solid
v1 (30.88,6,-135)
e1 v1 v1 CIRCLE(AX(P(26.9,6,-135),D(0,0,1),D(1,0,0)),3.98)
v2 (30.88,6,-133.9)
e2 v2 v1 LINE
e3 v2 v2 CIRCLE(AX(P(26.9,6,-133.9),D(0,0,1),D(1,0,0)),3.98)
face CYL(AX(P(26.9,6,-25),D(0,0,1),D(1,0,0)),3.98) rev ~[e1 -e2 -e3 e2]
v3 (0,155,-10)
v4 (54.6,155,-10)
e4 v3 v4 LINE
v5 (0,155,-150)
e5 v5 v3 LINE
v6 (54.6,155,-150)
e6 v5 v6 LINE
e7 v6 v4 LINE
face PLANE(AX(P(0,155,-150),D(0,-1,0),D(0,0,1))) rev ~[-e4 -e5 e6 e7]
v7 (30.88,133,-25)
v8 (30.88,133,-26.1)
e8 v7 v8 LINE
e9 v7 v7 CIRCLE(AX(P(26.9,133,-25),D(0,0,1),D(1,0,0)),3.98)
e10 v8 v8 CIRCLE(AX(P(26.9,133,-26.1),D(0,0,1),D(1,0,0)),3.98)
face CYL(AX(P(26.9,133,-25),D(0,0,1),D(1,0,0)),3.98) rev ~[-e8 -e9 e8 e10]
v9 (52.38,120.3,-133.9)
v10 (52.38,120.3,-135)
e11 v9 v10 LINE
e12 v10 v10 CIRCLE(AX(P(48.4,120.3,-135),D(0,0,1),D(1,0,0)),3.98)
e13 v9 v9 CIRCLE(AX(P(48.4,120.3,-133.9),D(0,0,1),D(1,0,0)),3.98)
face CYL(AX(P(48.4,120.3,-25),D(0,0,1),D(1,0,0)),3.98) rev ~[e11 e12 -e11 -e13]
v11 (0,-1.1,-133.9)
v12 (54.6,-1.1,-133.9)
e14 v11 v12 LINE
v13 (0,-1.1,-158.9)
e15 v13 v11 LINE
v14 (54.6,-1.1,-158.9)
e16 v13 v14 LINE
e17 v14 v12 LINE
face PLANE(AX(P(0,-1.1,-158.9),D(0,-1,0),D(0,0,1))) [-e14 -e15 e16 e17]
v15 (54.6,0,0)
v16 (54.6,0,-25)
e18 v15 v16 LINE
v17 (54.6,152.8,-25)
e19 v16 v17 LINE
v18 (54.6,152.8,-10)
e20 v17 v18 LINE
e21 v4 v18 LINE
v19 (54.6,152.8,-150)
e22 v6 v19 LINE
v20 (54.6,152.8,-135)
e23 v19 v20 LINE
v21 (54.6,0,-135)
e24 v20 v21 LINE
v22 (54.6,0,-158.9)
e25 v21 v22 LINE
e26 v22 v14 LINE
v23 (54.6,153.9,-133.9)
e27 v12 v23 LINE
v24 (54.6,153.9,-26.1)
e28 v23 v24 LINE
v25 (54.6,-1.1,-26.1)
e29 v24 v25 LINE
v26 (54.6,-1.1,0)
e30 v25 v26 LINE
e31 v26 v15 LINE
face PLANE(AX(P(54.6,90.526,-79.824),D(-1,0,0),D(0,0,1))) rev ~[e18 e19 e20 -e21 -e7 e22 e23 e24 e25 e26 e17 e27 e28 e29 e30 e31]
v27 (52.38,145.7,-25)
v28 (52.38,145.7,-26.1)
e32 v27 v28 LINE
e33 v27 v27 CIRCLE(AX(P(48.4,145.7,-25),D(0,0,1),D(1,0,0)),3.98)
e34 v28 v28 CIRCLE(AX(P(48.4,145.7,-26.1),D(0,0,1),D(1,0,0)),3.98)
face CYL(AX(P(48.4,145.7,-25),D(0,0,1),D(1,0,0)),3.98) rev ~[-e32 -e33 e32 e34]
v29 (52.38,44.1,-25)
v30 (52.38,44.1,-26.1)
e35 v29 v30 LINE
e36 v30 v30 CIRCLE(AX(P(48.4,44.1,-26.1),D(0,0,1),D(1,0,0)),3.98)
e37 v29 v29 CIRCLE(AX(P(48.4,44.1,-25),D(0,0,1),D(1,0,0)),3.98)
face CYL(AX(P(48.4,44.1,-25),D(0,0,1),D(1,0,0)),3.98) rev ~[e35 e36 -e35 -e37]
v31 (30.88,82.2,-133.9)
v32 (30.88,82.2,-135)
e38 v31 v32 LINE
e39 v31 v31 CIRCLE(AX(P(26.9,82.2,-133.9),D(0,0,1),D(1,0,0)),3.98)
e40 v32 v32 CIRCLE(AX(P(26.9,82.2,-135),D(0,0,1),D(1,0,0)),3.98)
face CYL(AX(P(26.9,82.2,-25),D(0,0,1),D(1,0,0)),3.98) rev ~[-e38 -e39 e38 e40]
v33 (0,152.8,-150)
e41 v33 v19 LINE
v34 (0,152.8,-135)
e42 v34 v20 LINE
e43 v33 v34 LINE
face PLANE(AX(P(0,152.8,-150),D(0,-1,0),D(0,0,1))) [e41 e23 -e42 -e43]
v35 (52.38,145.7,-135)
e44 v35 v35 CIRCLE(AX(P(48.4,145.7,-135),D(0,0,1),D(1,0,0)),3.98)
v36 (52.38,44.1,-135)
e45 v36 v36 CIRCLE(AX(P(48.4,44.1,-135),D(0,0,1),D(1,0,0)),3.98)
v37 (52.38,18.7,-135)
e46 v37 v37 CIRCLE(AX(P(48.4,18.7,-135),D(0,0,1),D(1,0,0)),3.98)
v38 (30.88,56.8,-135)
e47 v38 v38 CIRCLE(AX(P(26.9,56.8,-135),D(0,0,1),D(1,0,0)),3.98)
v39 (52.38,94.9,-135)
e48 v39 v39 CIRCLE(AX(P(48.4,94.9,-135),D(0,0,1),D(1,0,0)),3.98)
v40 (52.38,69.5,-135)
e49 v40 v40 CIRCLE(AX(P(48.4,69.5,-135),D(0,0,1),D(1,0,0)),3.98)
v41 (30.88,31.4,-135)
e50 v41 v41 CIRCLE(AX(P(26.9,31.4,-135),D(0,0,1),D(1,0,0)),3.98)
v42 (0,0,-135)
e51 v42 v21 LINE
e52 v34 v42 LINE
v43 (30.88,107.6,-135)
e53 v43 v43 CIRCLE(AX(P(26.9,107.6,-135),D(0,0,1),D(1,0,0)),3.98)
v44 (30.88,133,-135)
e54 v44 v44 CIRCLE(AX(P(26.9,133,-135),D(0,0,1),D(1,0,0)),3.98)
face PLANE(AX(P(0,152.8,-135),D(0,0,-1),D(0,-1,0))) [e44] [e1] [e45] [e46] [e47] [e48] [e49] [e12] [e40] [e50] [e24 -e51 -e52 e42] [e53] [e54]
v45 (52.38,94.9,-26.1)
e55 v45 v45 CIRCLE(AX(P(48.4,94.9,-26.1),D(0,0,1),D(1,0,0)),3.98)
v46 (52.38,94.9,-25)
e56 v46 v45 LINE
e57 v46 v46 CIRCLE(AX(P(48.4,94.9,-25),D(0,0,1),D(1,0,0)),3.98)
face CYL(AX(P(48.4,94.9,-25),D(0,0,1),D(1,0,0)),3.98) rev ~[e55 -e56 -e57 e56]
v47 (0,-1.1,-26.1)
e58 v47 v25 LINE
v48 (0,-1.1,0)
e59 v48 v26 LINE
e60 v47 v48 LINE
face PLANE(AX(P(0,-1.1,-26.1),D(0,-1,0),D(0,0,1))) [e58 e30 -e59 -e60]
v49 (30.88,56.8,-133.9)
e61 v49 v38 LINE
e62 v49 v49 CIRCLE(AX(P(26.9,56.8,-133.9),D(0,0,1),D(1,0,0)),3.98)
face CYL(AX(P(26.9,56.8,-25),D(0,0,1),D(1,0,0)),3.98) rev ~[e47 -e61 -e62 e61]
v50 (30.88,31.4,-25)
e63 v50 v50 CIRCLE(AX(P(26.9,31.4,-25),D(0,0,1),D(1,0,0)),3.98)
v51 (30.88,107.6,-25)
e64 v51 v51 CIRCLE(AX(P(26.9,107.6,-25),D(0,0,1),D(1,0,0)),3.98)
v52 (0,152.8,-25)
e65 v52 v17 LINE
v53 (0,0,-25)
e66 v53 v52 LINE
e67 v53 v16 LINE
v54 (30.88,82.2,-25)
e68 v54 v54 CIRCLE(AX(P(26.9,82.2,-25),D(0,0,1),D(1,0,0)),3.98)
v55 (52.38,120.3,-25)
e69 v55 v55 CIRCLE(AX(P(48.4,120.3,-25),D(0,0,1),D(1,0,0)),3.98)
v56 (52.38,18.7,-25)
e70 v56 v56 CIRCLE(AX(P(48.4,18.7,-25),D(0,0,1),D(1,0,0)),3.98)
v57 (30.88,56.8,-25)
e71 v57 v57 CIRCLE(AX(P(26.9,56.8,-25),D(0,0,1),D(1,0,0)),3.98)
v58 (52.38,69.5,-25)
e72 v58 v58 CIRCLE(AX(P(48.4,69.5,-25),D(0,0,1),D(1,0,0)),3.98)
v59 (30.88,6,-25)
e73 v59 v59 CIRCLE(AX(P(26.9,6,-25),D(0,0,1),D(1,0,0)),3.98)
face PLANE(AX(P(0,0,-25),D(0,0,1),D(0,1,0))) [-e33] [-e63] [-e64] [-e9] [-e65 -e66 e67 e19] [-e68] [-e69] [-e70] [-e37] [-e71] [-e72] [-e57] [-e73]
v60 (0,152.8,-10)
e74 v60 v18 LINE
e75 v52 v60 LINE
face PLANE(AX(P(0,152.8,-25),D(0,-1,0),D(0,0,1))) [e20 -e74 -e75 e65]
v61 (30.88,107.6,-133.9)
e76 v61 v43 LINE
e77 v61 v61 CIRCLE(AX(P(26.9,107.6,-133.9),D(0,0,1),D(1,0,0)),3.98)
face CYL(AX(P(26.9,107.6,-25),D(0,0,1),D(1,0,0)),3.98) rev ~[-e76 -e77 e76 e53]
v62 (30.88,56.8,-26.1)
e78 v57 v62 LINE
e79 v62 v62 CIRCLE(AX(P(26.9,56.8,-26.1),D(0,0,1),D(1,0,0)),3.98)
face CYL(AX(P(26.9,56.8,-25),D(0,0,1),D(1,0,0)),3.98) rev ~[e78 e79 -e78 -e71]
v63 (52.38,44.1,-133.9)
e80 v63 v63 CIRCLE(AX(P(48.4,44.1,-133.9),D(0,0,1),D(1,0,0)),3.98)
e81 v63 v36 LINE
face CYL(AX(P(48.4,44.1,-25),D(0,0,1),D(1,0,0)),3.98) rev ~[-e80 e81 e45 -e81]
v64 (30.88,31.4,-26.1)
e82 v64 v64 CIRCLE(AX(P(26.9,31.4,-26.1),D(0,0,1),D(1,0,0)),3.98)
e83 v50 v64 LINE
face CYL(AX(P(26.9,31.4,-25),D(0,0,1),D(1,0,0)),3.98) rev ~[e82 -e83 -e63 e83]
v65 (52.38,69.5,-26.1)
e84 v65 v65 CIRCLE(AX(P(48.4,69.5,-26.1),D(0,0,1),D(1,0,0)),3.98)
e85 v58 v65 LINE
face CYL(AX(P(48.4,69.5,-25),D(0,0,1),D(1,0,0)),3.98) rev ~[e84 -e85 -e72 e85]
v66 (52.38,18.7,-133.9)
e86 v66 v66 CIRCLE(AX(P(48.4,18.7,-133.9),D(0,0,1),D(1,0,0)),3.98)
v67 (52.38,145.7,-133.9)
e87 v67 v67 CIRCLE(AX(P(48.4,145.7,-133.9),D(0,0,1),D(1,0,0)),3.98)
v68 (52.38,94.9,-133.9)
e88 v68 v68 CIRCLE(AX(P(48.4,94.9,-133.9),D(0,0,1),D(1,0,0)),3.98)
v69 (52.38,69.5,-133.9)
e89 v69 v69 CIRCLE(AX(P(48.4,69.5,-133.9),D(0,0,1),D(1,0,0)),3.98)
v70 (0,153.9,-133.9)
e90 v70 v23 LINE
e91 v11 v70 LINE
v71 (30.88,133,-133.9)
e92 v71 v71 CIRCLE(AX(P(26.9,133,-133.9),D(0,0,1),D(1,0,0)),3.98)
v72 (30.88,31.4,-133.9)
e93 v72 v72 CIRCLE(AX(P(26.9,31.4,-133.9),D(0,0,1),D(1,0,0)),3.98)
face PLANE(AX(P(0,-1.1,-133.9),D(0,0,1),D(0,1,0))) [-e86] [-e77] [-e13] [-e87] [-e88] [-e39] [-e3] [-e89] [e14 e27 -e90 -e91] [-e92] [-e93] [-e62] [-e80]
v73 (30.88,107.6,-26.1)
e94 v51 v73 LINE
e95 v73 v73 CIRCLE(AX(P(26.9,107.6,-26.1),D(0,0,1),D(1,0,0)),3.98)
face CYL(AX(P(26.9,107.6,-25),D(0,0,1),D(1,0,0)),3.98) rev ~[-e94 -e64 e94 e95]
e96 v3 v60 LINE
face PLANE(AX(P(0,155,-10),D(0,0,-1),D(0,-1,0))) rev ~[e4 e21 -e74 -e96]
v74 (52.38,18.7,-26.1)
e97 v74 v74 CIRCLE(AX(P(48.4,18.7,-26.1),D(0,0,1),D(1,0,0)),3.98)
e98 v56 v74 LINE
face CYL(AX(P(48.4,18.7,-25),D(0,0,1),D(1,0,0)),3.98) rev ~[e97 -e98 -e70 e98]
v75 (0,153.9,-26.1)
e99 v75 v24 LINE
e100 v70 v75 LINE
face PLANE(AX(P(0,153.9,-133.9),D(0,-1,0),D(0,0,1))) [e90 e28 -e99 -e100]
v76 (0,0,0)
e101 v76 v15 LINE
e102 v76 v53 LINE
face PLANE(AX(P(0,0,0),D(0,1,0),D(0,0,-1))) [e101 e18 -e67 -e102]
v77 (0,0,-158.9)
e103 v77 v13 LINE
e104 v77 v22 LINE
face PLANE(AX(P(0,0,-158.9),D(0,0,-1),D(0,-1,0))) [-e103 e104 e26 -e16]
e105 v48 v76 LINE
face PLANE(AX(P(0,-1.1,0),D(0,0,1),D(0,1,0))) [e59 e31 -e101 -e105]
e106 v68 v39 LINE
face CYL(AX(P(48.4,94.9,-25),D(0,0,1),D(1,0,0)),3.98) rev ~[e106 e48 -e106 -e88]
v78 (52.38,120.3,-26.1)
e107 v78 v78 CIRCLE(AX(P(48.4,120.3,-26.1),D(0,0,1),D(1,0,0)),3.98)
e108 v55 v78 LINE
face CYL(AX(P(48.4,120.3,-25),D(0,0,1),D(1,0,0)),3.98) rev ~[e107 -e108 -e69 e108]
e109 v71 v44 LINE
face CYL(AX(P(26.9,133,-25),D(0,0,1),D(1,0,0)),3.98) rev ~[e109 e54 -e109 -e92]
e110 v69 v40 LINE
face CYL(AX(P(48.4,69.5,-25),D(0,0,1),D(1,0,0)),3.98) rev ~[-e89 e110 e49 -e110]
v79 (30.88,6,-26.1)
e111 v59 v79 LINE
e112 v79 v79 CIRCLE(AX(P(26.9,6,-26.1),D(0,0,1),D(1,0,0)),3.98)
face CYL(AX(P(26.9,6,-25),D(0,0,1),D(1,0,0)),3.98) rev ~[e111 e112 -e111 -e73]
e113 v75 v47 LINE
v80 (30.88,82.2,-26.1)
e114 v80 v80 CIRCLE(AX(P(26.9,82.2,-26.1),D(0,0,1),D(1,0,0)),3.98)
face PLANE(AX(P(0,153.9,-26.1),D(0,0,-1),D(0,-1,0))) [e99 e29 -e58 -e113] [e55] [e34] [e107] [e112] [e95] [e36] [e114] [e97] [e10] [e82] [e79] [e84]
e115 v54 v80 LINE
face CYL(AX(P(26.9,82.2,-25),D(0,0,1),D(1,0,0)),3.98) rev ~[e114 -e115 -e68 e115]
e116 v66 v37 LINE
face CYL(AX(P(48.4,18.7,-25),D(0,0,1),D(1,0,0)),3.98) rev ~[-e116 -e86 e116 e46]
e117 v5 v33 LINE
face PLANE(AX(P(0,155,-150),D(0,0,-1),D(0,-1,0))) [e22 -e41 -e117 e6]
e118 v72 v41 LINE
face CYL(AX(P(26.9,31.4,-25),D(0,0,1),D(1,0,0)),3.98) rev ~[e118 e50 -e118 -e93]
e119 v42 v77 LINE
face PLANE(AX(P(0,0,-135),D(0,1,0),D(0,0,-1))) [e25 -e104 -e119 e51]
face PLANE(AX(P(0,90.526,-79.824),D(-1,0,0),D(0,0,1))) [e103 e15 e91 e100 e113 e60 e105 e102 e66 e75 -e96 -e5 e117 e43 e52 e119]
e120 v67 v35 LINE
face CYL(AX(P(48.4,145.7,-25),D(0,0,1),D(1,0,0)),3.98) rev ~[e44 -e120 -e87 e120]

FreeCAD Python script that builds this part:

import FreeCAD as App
import Part
import Sketcher

doc = App.newDocument("Part")
body = doc.addObject("PartDesign::Body", "Body")

# Sketch on YZ plane
sketch1 = doc.addObject("Sketcher::SketchObject", "Sketch")
body.addObject(sketch1)
sketch1.AttachmentSupport = (doc.YZ_Plane, [""])
sketch1.MapMode = "FlatFace"
sketch1.addGeometry([
    Part.LineSegment(App.Vector(0, -25, 0), App.Vector(0, 0, 0)),  # 0
    Part.LineSegment(App.Vector(0, 0, 0), App.Vector(-1.1, 0, 0)),  # 1
    Part.LineSegment(App.Vector(-1.1, 0, 0), App.Vector(-1.1, -26.1, 0)),  # 2
    Part.LineSegment(App.Vector(-1.1, -26.1, 0), App.Vector(153.9, -26.1, 0)),  # 3
    Part.LineSegment(App.Vector(153.9, -26.1, 0), App.Vector(153.9, -133.9, 0)),  # 4
    Part.LineSegment(App.Vector(153.9, -133.9, 0), App.Vector(-1.1, -133.9, 0)),  # 5
    Part.LineSegment(App.Vector(-1.1, -133.9, 0), App.Vector(-1.1, -158.9, 0)),  # 6
    Part.LineSegment(App.Vector(-1.1, -158.9, 0), App.Vector(0, -158.9, 0)),  # 7
    Part.LineSegment(App.Vector(0, -158.9, 0), App.Vector(0, -135, 0)),  # 8
    Part.LineSegment(App.Vector(0, -135, 0), App.Vector(152.8, -135, 0)),  # 9
    Part.LineSegment(App.Vector(152.8, -135, 0), App.Vector(152.8, -150, 0)),  # 10
    Part.LineSegment(App.Vector(152.8, -150, 0), App.Vector(155, -150, 0)),  # 11
    Part.LineSegment(App.Vector(155, -150, 0), App.Vector(155, -10, 0)),  # 12
    Part.LineSegment(App.Vector(155, -10, 0), App.Vector(152.8, -10, 0)),  # 13
    Part.LineSegment(App.Vector(152.8, -10, 0), App.Vector(152.8, -25, 0)),  # 14
    Part.LineSegment(App.Vector(152.8, -25, 0), App.Vector(0, -25, 0)),  # 15
], False)
sketch1.addConstraint([
    Sketcher.Constraint("Coincident", 0, 2, 1, 1),
    Sketcher.Constraint("Coincident", 1, 2, 2, 1),
    Sketcher.Constraint("Coincident", 2, 2, 3, 1),
    Sketcher.Constraint("Coincident", 3, 2, 4, 1),
    Sketcher.Constraint("Coincident", 4, 2, 5, 1),
    Sketcher.Constraint("Coincident", 5, 2, 6, 1),
    Sketcher.Constraint("Coincident", 6, 2, 7, 1),
    Sketcher.Constraint("Coincident", 7, 2, 8, 1),
    Sketcher.Constraint("Coincident", 8, 2, 9, 1),
    Sketcher.Constraint("Coincident", 9, 2, 10, 1),
    Sketcher.Constraint("Coincident", 10, 2, 11, 1),
    Sketcher.Constraint("Coincident", 11, 2, 12, 1),
    Sketcher.Constraint("Coincident", 12, 2, 13, 1),
    Sketcher.Constraint("Coincident", 13, 2, 14, 1),
    Sketcher.Constraint("Coincident", 14, 2, 15, 1),
    Sketcher.Constraint("Coincident", 15, 2, 0, 1),
    Sketcher.Constraint("Vertical", 0),
    Sketcher.Constraint("Horizontal", 1),
    Sketcher.Constraint("Vertical", 2),
    Sketcher.Constraint("Horizontal", 3),
    Sketcher.Constraint("Vertical", 4),
    Sketcher.Constraint("Horizontal", 5),
    Sketcher.Constraint("Vertical", 6),
    Sketcher.Constraint("Horizontal", 7),
    Sketcher.Constraint("Vertical", 8),
    Sketcher.Constraint("Horizontal", 9),
    Sketcher.Constraint("Vertical", 10),
    Sketcher.Constraint("Horizontal", 11),
    Sketcher.Constraint("Vertical", 12),
    Sketcher.Constraint("Horizontal", 13),
    Sketcher.Constraint("Vertical", 14),
    Sketcher.Constraint("Horizontal", 15),
    Sketcher.Constraint("Coincident", 0, 2, -1, 1),
    Sketcher.Constraint("PointOnObject", 7, 2, -2),
    Sketcher.Constraint("Vertical", 2, 2, 5, 2),
    Sketcher.Constraint("Vertical", 10, 2, 13, 2),
    Sketcher.Constraint("Equal", 0, 6),
    Sketcher.Constraint("Equal", 10, 14),
    Sketcher.Constraint("DistanceX", 3, 1, 3, 2, 155.0),
    Sketcher.Constraint("DistanceY", 0, 1, 0, 2, 25.0),
    Sketcher.Constraint("DistanceY", 10, 2, 10, 1, 15.0),
    Sketcher.Constraint("DistanceY", 12, 1, 12, 2, 140.0),
    Sketcher.Constraint("DistanceX", 1, 2, 1, 1, 1.1),
    Sketcher.Constraint("DistanceX", 9, 1, 9, 2, 152.8),
    Sketcher.Constraint("DistanceX", 11, 1, 11, 2, 2.2),
    Sketcher.Constraint("DistanceY", 2, 2, 2, 1, 26.1),
    Sketcher.Constraint("DistanceY", 4, 2, 4, 1, 107.8),
])
pad1 = doc.addObject("PartDesign::Pad", "Pad")
body.addObject(pad1)
pad1.Profile = sketch1
pad1.Length = 54.6

# Sketch on XY plane
sketch2 = doc.addObject("Sketcher::SketchObject", "Sketch001")
body.addObject(sketch2)
sketch2.AttachmentSupport = (doc.XY_Plane, [""])
sketch2.MapMode = "FlatFace"
sketch2.AttachmentOffset = App.Placement(App.Vector(0, 0, -25), App.Rotation())
sketch2.addGeometry([
    Part.Circle(App.Vector(26.9, 6, 0), App.Vector(0, 0, 1), 4),  # 0
    Part.Circle(App.Vector(48.4, 18.7, 0), App.Vector(0, 0, 1), 4),  # 1
    Part.Circle(App.Vector(26.9, 31.4, 0), App.Vector(0, 0, 1), 4),  # 2
    Part.Circle(App.Vector(48.4, 44.1, 0), App.Vector(0, 0, 1), 4),  # 3
    Part.Circle(App.Vector(26.9, 56.8, 0), App.Vector(0, 0, 1), 4),  # 4
    Part.Circle(App.Vector(48.4, 69.5, 0), App.Vector(0, 0, 1), 4),  # 5
    Part.Circle(App.Vector(26.9, 82.2, 0), App.Vector(0, 0, 1), 4),  # 6
    Part.Circle(App.Vector(48.4, 94.9, 0), App.Vector(0, 0, 1), 4),  # 7
    Part.Circle(App.Vector(26.9, 107.6, 0), App.Vector(0, 0, 1), 4),  # 8
    Part.Circle(App.Vector(48.4, 120.3, 0), App.Vector(0, 0, 1), 4),  # 9
    Part.Circle(App.Vector(26.9, 133, 0), App.Vector(0, 0, 1), 4),  # 10
    Part.Circle(App.Vector(48.4, 145.7, 0), App.Vector(0, 0, 1), 4),  # 11
], False)
sketch2.addConstraint([
    Sketcher.Constraint("Equal", 0, 1),
    Sketcher.Constraint("Equal", 1, 2),
    Sketcher.Constraint("Equal", 2, 3),
    Sketcher.Constraint("Equal", 3, 4),
    Sketcher.Constraint("Equal", 4, 5),
    Sketcher.Constraint("Equal", 5, 6),
    Sketcher.Constraint("Equal", 6, 7),
    Sketcher.Constraint("Equal", 7, 8),
    Sketcher.Constraint("Equal", 8, 9),
    Sketcher.Constraint("Equal", 9, 10),
    Sketcher.Constraint("Equal", 10, 11),
    Sketcher.Constraint("Vertical", 0, 3, 2, 3),
    Sketcher.Constraint("Vertical", 1, 3, 3, 3),
    Sketcher.Constraint("Vertical", 2, 3, 4, 3),
    Sketcher.Constraint("Vertical", 3, 3, 5, 3),
    Sketcher.Constraint("Vertical", 4, 3, 6, 3),
    Sketcher.Constraint("Vertical", 5, 3, 7, 3),
    Sketcher.Constraint("Vertical", 6, 3, 8, 3),
    Sketcher.Constraint("Vertical", 7, 3, 9, 3),
    Sketcher.Constraint("Vertical", 8, 3, 10, 3),
    Sketcher.Constraint("Vertical", 9, 3, 11, 3),
    Sketcher.Constraint("Diameter", 0, 7.96),
    Sketcher.Constraint("DistanceY", -1, 1, 0, 3, 6.0),
    Sketcher.Constraint("DistanceY", -1, 1, 10, 3, 133.0),
    Sketcher.Constraint("DistanceX", -1, 1, 0, 3, 26.9),
    Sketcher.Constraint("DistanceX", -1, 1, 1, 3, 48.4),
    Sketcher.Constraint("DistanceY", -1, 1, 1, 3, 18.7),
    Sketcher.Constraint("DistanceY", -1, 1, 2, 3, 31.4),
    Sketcher.Constraint("DistanceY", -1, 1, 3, 3, 44.1),
    Sketcher.Constraint("DistanceY", -1, 1, 4, 3, 56.8),
    Sketcher.Constraint("DistanceY", -1, 1, 5, 3, 69.5),
    Sketcher.Constraint("DistanceY", -1, 1, 6, 3, 82.2),
    Sketcher.Constraint("DistanceY", -1, 1, 7, 3, 94.9),
    Sketcher.Constraint("DistanceY", -1, 1, 8, 3, 107.6),
    Sketcher.Constraint("DistanceY", -1, 1, 9, 3, 120.3),
    Sketcher.Constraint("DistanceY", -1, 1, 11, 3, 145.7),
])
pocket1 = doc.addObject("PartDesign::Pocket", "Pocket")
body.addObject(pocket1)
pocket1.Profile = sketch2
pocket1.Type = "ThroughAll"

doc.recompute()
